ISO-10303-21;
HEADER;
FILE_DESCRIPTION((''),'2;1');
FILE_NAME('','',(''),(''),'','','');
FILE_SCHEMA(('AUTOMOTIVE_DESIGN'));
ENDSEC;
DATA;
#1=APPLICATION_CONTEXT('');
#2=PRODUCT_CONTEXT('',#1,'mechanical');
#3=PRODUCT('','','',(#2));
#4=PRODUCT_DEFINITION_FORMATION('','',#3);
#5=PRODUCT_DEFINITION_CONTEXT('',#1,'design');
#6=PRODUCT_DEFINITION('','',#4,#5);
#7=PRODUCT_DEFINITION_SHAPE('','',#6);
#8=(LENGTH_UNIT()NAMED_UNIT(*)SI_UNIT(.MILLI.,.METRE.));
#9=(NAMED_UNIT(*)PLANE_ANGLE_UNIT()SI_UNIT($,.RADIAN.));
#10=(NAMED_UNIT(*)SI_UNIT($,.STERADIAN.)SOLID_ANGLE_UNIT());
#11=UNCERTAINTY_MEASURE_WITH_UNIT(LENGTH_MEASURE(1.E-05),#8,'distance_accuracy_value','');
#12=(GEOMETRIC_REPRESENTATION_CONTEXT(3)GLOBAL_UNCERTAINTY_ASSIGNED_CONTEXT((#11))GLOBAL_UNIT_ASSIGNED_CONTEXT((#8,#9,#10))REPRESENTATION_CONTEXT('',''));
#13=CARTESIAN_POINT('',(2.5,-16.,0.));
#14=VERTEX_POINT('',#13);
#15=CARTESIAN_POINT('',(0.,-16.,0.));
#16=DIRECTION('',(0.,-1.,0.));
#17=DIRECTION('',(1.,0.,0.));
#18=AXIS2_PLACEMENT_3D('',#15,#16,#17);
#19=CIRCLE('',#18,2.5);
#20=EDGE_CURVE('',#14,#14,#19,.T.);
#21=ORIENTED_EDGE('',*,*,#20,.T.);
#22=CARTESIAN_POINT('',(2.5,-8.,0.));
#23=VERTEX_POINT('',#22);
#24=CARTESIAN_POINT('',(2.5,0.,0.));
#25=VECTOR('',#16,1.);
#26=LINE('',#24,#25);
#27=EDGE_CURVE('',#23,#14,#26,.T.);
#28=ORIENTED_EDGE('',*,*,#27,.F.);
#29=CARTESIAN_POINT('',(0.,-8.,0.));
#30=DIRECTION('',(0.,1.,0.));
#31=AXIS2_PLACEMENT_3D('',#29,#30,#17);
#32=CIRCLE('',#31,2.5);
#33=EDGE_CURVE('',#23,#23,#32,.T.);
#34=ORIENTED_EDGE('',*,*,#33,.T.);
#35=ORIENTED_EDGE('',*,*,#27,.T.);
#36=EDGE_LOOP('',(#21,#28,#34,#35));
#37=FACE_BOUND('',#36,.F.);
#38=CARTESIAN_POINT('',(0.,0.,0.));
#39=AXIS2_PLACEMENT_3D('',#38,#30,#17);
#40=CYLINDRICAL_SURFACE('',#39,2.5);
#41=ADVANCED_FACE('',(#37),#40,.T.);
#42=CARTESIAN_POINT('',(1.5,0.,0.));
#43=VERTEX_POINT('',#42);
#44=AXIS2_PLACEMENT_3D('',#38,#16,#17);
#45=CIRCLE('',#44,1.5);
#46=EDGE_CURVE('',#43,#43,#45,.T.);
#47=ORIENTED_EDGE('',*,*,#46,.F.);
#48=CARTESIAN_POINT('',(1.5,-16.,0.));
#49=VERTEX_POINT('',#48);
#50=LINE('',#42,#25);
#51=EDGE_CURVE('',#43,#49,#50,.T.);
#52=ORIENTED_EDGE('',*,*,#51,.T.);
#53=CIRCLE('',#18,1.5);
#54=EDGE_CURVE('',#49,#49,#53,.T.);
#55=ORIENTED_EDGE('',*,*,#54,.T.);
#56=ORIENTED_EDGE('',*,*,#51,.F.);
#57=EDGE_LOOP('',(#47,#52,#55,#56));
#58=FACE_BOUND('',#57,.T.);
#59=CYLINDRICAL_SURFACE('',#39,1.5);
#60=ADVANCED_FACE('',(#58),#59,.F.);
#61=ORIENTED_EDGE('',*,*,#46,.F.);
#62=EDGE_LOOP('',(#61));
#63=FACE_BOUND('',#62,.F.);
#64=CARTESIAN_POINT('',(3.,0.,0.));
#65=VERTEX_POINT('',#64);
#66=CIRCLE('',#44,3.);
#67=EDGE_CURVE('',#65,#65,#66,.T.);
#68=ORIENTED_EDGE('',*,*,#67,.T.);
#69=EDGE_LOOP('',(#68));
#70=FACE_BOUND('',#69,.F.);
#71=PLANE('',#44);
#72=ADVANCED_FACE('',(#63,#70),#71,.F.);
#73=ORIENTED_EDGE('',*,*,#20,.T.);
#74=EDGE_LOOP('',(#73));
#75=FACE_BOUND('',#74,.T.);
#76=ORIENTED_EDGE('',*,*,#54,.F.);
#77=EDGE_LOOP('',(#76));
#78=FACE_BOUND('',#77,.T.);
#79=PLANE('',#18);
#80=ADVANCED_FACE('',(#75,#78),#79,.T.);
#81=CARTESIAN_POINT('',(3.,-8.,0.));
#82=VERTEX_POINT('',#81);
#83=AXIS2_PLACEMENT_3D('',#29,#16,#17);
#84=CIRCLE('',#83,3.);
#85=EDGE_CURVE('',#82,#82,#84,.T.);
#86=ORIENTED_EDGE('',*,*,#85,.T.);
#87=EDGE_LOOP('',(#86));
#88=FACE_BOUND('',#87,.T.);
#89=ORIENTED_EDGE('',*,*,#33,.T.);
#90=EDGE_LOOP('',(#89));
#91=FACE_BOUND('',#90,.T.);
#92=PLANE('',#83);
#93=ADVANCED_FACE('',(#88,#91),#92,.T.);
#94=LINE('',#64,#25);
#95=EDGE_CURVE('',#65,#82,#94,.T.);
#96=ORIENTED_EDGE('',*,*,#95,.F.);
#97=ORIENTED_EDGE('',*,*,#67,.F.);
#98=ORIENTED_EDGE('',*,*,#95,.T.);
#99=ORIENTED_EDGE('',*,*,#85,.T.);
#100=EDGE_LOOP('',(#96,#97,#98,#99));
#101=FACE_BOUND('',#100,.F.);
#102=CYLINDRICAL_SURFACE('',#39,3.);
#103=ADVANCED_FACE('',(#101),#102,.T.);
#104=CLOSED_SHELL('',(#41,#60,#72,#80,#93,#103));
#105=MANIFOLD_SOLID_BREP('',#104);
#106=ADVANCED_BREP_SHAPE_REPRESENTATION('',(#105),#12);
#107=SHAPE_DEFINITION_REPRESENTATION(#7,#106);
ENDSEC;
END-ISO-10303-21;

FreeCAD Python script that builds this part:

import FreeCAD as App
import Part
import Sketcher
Q = App.Units.Quantity

doc = App.newDocument("Part")
body = doc.addObject("PartDesign::Body", "Body")

sketch1 = body.newObject("Sketcher::SketchObject", "Sketch")
sketch1.AttachmentSupport = (doc.getObject("XZ_Plane"), [""])
sketch1.MapMode = "FlatFace"
sketch1.addGeometry(Part.Circle(App.Vector(0, 0, 0), App.Vector(0, 0, 1), 3), False)
sketch1.addConstraint(Sketcher.Constraint("Coincident", 0, 3, -1, 1))
sketch1.addConstraint(Sketcher.Constraint("Diameter", 0, Q("6 mm")))
pad1 = body.newObject("PartDesign::Pad", "Pad")
pad1.Profile = sketch1
pad1.Length = 8

sketch2 = body.newObject("Sketcher::SketchObject", "Sketch001")
sketch2.AttachmentSupport = (doc.getObject("XZ_Plane"), [""])
sketch2.MapMode = "FlatFace"
sketch2.addGeometry(Part.Circle(App.Vector(0, 0, 0), App.Vector(0, 0, 1), 2.5), False)
sketch2.addConstraint(Sketcher.Constraint("Coincident", 0, 3, -1, 1))
sketch2.addConstraint(Sketcher.Constraint("Diameter", 0, Q("5 mm")))
pad2 = body.newObject("PartDesign::Pad", "Pad001")
pad2.Profile = sketch2
pad2.Length = 16

sketch3 = body.newObject("Sketcher::SketchObject", "Sketch002")
sketch3.AttachmentSupport = (doc.getObject("XZ_Plane"), [""])
sketch3.MapMode = "FlatFace"
sketch3.addGeometry(Part.Circle(App.Vector(0, 0, 0), App.Vector(0, 0, 1), 1.5), False)
sketch3.addConstraint(Sketcher.Constraint("Coincident", 0, 3, -1, 1))
sketch3.addConstraint(Sketcher.Constraint("Diameter", 0, Q("3 mm")))
pocket1 = body.newObject("PartDesign::Pocket", "Pocket")
pocket1.Profile = sketch3
pocket1.Length = 16
pocket1.Reversed = True

doc.recompute()
